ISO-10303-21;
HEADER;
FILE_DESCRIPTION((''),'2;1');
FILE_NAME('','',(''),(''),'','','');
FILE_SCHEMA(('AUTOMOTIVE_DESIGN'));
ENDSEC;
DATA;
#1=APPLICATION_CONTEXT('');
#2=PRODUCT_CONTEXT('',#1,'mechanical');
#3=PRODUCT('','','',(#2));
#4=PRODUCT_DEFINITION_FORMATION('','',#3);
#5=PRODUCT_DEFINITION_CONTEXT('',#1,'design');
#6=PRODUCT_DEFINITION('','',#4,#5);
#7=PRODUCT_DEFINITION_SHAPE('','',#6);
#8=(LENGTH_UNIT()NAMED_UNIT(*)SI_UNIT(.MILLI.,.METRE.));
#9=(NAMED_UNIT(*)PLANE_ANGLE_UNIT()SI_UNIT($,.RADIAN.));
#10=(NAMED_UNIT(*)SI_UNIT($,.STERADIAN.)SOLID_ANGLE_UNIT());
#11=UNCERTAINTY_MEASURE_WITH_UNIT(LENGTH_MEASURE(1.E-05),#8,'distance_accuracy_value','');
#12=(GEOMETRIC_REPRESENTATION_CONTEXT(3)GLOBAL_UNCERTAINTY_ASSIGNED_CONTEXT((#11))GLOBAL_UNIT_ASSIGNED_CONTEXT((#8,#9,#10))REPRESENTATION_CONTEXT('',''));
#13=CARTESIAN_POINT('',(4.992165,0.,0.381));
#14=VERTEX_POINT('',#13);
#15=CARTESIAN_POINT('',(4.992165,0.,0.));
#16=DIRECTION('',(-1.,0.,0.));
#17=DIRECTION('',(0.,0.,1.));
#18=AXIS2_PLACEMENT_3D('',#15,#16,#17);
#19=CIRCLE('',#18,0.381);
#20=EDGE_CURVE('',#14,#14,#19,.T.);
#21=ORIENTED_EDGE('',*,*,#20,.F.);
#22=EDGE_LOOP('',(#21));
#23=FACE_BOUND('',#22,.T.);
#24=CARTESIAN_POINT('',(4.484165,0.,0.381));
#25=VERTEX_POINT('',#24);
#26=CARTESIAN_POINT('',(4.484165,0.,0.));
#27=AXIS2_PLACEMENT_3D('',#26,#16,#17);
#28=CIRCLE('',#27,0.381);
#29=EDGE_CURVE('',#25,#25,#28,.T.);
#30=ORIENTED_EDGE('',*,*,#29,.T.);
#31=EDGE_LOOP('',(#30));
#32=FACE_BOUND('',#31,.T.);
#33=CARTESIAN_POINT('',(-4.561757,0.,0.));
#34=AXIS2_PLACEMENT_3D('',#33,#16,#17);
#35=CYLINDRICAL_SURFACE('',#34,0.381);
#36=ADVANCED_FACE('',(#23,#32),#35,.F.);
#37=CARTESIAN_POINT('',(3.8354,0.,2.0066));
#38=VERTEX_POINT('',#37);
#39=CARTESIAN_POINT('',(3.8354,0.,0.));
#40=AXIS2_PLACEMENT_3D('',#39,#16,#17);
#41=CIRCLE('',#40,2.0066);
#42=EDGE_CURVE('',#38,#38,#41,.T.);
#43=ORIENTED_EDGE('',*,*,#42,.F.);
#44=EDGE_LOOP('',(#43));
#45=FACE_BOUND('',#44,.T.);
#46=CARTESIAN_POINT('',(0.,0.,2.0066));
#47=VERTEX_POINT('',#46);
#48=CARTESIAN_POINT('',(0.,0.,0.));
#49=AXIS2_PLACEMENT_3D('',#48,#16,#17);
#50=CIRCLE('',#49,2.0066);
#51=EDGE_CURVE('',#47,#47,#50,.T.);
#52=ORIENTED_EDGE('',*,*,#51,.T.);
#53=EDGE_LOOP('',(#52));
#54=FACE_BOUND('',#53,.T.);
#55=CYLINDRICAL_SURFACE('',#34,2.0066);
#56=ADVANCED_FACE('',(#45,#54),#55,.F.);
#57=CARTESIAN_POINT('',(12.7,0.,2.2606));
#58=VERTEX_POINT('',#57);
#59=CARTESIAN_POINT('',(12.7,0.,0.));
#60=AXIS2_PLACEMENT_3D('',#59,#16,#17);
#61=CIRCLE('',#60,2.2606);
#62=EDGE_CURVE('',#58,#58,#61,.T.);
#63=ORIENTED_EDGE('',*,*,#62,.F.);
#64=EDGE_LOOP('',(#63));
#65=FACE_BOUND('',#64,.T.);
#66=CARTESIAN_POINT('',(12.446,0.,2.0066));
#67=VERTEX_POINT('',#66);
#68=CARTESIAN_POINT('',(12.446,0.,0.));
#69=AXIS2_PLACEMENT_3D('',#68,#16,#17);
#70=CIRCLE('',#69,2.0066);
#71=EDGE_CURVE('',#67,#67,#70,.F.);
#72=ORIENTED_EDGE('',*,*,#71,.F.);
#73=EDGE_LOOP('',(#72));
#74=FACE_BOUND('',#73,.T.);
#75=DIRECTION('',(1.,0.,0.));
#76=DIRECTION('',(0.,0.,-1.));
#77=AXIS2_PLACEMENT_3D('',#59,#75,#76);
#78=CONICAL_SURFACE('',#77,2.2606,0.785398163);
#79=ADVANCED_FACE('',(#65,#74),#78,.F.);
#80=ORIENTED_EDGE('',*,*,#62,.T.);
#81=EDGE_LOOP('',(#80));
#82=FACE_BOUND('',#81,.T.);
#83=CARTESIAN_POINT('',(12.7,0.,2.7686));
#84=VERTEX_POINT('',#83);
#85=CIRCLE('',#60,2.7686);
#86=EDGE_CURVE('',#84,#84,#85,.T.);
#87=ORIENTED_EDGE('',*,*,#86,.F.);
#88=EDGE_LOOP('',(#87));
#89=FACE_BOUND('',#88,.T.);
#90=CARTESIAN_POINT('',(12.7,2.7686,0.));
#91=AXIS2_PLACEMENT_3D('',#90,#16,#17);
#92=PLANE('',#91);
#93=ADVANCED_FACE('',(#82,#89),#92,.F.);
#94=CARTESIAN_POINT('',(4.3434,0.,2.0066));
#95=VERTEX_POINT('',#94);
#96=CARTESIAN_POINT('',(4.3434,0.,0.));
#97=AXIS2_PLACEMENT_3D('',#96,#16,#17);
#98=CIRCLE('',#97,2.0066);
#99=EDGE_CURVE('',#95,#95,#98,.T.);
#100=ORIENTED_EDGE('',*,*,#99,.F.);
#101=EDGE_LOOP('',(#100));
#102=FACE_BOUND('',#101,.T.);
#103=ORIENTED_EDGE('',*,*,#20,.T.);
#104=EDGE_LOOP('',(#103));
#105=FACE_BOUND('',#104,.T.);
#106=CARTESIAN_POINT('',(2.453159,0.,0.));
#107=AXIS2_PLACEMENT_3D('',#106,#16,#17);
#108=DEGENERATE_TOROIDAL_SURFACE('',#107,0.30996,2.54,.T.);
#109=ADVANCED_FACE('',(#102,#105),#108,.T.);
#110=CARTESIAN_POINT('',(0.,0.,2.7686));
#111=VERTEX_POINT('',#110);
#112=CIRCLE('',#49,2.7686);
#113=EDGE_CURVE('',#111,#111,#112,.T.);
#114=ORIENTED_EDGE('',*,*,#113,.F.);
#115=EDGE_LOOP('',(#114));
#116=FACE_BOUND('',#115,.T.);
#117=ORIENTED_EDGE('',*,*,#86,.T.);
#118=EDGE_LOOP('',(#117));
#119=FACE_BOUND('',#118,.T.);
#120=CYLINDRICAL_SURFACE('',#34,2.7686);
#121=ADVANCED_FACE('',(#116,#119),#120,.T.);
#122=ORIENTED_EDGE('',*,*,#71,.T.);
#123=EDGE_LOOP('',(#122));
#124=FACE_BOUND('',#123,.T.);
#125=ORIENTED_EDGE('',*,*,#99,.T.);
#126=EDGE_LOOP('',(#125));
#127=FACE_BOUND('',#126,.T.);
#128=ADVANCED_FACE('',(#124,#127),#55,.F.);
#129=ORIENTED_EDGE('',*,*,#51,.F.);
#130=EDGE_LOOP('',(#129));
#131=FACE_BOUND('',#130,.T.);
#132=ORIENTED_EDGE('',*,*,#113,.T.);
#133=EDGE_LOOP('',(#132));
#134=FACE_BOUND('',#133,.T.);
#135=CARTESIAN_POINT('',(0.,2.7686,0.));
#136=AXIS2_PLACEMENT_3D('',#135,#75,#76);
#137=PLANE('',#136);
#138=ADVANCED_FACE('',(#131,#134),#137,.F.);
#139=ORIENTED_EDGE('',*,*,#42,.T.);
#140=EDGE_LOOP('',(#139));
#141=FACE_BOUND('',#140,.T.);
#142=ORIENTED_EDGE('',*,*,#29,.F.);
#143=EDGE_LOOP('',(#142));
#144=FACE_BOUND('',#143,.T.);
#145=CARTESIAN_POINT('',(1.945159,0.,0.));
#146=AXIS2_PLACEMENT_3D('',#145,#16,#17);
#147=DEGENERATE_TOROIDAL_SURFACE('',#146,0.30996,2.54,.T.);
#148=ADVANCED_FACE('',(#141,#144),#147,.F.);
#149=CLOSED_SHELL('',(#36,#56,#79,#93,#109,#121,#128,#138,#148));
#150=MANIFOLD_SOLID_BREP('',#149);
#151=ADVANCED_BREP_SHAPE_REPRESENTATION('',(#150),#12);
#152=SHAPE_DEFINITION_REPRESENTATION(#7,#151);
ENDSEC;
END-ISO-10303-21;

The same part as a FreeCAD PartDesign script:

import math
import FreeCAD as App
import Part
import Sketcher
Q = App.Units.Quantity


def edges_at(feature, points):
    """Names of the edges that pass closest to the given points."""
    edges = feature.Shape.Edges
    near = lambda p: min(range(len(edges)), key=lambda i: edges[i].distToShape(Part.Vertex(*p))[0])
    return sorted({f"Edge{near(p) + 1}" for p in points})

doc = App.newDocument("Part")
body = doc.addObject("PartDesign::Body", "Body")

sketch1 = body.newObject("Sketcher::SketchObject", "Sketch")
sketch1.AttachmentSupport = (doc.getObject("XY_Plane"), [""])
sketch1.MapMode = "FlatFace"
sketch1.addGeometry([
    Part.LineSegment(App.Vector(12.7, 2.8, 0), App.Vector(0, 2.8, 0)),
    Part.LineSegment(App.Vector(0, 2.8, 0), App.Vector(0, 2, 0)),
    Part.LineSegment(App.Vector(0, 2, 0), App.Vector(3.8, 2, 0)),
    Part.ArcOfCircle(Part.Circle(App.Vector(1.9, 0.3, 0), App.Vector(0, 0, 1), 2.5), math.radians(2), math.radians(42)),
    Part.LineSegment(App.Vector(4.5, 0.4, 0), App.Vector(5, 0.4, 0)),
    Part.ArcOfCircle(Part.Circle(App.Vector(2.5, 0.3, 0), App.Vector(0, 0, 1), 2.5), math.radians(2), math.radians(42)),
    Part.LineSegment(App.Vector(4.3, 2, 0), App.Vector(12.7, 2, 0)),
    Part.LineSegment(App.Vector(12.7, 2, 0), App.Vector(12.7, 2.8, 0)),
], False)
sketch1.addConstraint([
    Sketcher.Constraint("Coincident", 0, 2, 1, 1),
    Sketcher.Constraint("Coincident", 1, 2, 2, 1),
    Sketcher.Constraint("Coincident", 2, 2, 3, 2),
    Sketcher.Constraint("Coincident", 3, 1, 4, 1),
    Sketcher.Constraint("Coincident", 4, 2, 5, 1),
    Sketcher.Constraint("Coincident", 5, 2, 6, 1),
    Sketcher.Constraint("Coincident", 6, 2, 7, 1),
    Sketcher.Constraint("Coincident", 7, 2, 0, 1),
    Sketcher.Constraint("Horizontal", 0),
    Sketcher.Constraint("Vertical", 1),
    Sketcher.Constraint("Horizontal", 2),
    Sketcher.Constraint("Horizontal", 4),
    Sketcher.Constraint("Horizontal", 6),
    Sketcher.Constraint("Vertical", 7),
    Sketcher.Constraint("Equal", 3, 5),
    Sketcher.Constraint("PointOnObject", 0, 2, -2),
    Sketcher.Constraint("Horizontal", 3, 3, 5, 3),
    Sketcher.Constraint("Horizontal", 2, 2, 5, 2),
    Sketcher.Constraint("Radius", 3, Q("0.1 in")),
    Sketcher.Constraint("DistanceX", 0, 2, 0, 1, Q("0.5 in")),
    Sketcher.Constraint("DistanceX", 4, 1, 4, 2, Q("0.02 in")),
    Sketcher.Constraint("DistanceY", 1, 2, 1, 1, Q("0.03 in")),
    Sketcher.Constraint("DistanceX", 2, 1, 2, 2, Q("0.151 in")),
    Sketcher.Constraint("DistanceY", -1, 1, 0, 2, Q("0.109 in")),
    Sketcher.Constraint("DistanceY", -1, 1, 3, 1, Q("0.015 in")),
    Sketcher.Constraint("DistanceX", -1, 1, 3, 3, 1.945159),
])
revolution = body.newObject("PartDesign::Revolution", "Revolution")
revolution.Profile = sketch1
revolution.ReferenceAxis = (sketch1, ["H_Axis"])
revolution.Angle = 360
doc.recompute()

chamfer = body.newObject("PartDesign::Chamfer", "Chamfer")
chamfer.Base = (revolution, edges_at(revolution, [(12.7, -2.007, 0)]))
chamfer.Size = Q("0.01 in")

doc.recompute()
